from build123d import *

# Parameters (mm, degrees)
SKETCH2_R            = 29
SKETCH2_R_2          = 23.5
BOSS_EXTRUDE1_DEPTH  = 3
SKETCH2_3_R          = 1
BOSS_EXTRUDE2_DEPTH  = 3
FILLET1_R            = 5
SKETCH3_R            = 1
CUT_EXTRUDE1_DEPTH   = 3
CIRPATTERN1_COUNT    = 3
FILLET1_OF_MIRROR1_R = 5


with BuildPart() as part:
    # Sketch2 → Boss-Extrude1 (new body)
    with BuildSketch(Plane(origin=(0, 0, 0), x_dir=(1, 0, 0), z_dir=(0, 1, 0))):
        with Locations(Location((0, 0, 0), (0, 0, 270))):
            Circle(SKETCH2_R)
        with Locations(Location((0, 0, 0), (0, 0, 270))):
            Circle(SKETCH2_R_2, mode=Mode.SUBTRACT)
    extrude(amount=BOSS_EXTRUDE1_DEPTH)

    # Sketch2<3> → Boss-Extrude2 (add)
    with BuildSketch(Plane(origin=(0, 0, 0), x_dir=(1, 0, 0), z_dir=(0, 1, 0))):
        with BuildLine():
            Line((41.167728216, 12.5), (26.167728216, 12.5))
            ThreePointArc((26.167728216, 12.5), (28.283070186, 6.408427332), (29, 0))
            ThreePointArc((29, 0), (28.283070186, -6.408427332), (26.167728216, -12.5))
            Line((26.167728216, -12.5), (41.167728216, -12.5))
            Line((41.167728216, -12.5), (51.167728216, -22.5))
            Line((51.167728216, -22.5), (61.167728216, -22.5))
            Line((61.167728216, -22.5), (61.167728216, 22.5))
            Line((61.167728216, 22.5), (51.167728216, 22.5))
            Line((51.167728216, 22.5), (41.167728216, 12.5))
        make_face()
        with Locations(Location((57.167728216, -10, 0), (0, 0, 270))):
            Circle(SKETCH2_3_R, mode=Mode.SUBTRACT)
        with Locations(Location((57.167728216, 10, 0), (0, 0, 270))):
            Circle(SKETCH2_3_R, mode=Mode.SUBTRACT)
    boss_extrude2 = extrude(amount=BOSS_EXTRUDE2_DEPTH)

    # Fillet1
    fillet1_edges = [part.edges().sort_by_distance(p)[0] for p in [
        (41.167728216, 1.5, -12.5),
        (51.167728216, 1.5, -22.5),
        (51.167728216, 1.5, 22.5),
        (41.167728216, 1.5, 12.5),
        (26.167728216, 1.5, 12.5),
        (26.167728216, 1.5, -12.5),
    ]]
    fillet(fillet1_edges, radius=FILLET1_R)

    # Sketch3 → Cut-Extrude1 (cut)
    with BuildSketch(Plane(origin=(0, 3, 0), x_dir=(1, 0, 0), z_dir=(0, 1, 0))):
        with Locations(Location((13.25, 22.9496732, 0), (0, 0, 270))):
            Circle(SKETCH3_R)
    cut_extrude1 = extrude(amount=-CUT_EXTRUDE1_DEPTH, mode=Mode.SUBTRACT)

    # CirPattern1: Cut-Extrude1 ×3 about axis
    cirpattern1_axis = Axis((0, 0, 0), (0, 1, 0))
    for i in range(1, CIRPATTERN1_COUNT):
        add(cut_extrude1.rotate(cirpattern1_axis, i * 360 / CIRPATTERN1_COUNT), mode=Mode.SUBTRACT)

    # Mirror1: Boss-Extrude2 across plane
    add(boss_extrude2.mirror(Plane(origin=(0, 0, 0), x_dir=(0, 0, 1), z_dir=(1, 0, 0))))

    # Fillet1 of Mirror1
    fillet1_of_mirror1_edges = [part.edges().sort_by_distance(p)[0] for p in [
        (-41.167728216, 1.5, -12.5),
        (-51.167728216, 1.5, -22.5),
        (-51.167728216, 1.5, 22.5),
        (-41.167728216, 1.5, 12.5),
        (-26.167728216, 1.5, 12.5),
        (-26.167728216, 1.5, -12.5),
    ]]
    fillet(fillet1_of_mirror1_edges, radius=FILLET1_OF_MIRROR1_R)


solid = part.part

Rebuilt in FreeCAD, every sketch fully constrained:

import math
import FreeCAD as App
import Part
import Sketcher

V = App.Vector


def edges_at(feature, points):
    """Names of the edges that pass closest to the given points."""
    edges = feature.Shape.Edges
    near = lambda p: min(range(len(edges)), key=lambda i: edges[i].distToShape(Part.Vertex(*p))[0])
    return sorted({f"Edge{near(p) + 1}" for p in points})

doc = App.newDocument("Part")
params = doc.addObject("Spreadsheet::Sheet", "Params")
for row, (alias, value) in enumerate([
    ("sketch1_diameter", "58 mm"),
    ("sketch1_diameter2", "47 mm"),
    ("pad1_length", "3 mm"),
    ("sketch2_diameter", "2 mm"),
    ("sketch2_radius", "29 mm"),
    ("sketch2_width", "15 mm"),
    ("sketch2_width2", "10 mm"),
    ("sketch2_height", "45 mm"),
    ("pad2_length", "3 mm"),
    ("fillet_radius", "5 mm"),
    ("sketch3_diameter", "2 mm"),
    ("pocket1_length", "3 mm"),
    ("fillet2_radius", "5 mm"),
], start=1):
    params.set(f"A{row}", alias)
    params.set(f"B{row}", "=" + value)
    params.setAlias(f"B{row}", alias)

body = doc.addObject("PartDesign::Body", "Body")

# Sketch on XZ plane
sketch1 = doc.addObject("Sketcher::SketchObject", "Sketch")
body.addObject(sketch1)
sketch1.AttachmentSupport = (doc.XZ_Plane, [""])
sketch1.MapMode = "FlatFace"
sketch1.addGeometry([
    Part.Circle(V(0, 0, 0), V(0, 0, 1), 29),
    Part.Circle(V(0, 0, 0), V(0, 0, 1), 24),
], False)
sketch1.addConstraint([
    Sketcher.Constraint("Coincident", 0, 3, -1, 1),
    Sketcher.Constraint("Coincident", 1, 3, -1, 1),
    Sketcher.Constraint("Diameter", 0, 58.0),
    Sketcher.Constraint("Diameter", 1, 47.0),
])
sketch1.setExpression("Constraints[2]", "Params.sketch1_diameter")
sketch1.setExpression("Constraints[3]", "Params.sketch1_diameter2")
pad1 = doc.addObject("PartDesign::Pad", "Pad")
body.addObject(pad1)
pad1.Profile = sketch1
pad1.setExpression("Length", "Params.pad1_length")
pad1.Reversed = True

# Sketch on XZ plane
sketch2 = doc.addObject("Sketcher::SketchObject", "Sketch001")
body.addObject(sketch2)
sketch2.AttachmentSupport = (doc.XZ_Plane, [""])
sketch2.MapMode = "FlatFace"
sketch2.addGeometry([
    Part.LineSegment(V(41.2, -12.5, 0), V(26.2, -12.5, 0)),  # 0
    Part.ArcOfCircle(Part.Circle(V(0, 0, 0), V(0, 0, 1), 29), math.radians(-26), math.radians(0)),  # 1
    Part.ArcOfCircle(Part.Circle(V(0, 0, 0), V(0, 0, 1), 29), math.radians(0), math.radians(26)),  # 2
    Part.LineSegment(V(26.2, 12.5, 0), V(41.2, 12.5, 0)),  # 3
    Part.LineSegment(V(41.2, 12.5, 0), V(51.2, 22.5, 0)),  # 4
    Part.LineSegment(V(51.2, 22.5, 0), V(61.2, 22.5, 0)),  # 5
    Part.LineSegment(V(61.2, 22.5, 0), V(61.2, -22.5, 0)),  # 6
    Part.LineSegment(V(61.2, -22.5, 0), V(51.2, -22.5, 0)),  # 7
    Part.LineSegment(V(51.2, -22.5, 0), V(41.2, -12.5, 0)),  # 8
    Part.Circle(V(57.2, 10, 0), V(0, 0, 1), 1),  # 9
    Part.Circle(V(57.2, -10, 0), V(0, 0, 1), 1),  # 10
], False)
sketch2.addConstraint([
    Sketcher.Constraint("Coincident", 0, 2, 1, 1),
    Sketcher.Constraint("Tangent", 1, 2, 2, 1),
    Sketcher.Constraint("Coincident", 2, 2, 3, 1),
    Sketcher.Constraint("Coincident", 3, 2, 4, 1),
    Sketcher.Constraint("Coincident", 4, 2, 5, 1),
    Sketcher.Constraint("Coincident", 5, 2, 6, 1),
    Sketcher.Constraint("Coincident", 6, 2, 7, 1),
    Sketcher.Constraint("Coincident", 7, 2, 8, 1),
    Sketcher.Constraint("Coincident", 8, 2, 0, 1),
    Sketcher.Constraint("Horizontal", 0),
    Sketcher.Constraint("Horizontal", 3),
    Sketcher.Constraint("Horizontal", 5),
    Sketcher.Constraint("Vertical", 6),
    Sketcher.Constraint("Horizontal", 7),
    Sketcher.Constraint("Coincident", 1, 3, -1, 1),
    Sketcher.Constraint("Equal", 1, 2),
    Sketcher.Constraint("Equal", 9, 10),
    Sketcher.Constraint("Symmetric", 9, 3, 10, 3, -1),
    Sketcher.Constraint("Symmetric", 4, 2, 7, 2, -1),
    Sketcher.Constraint("Symmetric", 3, 2, 8, 2, -1),
    Sketcher.Constraint("PointOnObject", 1, 2, -1),
    Sketcher.Constraint("Perpendicular", 4, 8),
    Sketcher.Constraint("Diameter", 9, 2.0),
    Sketcher.Constraint("Radius", 1, 29.0),
    Sketcher.Constraint("DistanceX", 0, 2, 0, 1, 15.0),
    Sketcher.Constraint("DistanceX", 5, 1, 5, 2, 10.0),
    Sketcher.Constraint("DistanceY", 6, 2, 6, 1, 45.0),
    Sketcher.Constraint("DistanceY", -1, 1, 9, 3, 10.0),
    Sketcher.Constraint("DistanceX", 0, 2, 10, 3, 31.0),
    Sketcher.Constraint("DistanceY", 0, 2, 2, 2, 25.0),
])
sketch2.setExpression("Constraints[22]", "Params.sketch2_diameter")
sketch2.setExpression("Constraints[23]", "Params.sketch2_radius")
sketch2.setExpression("Constraints[24]", "Params.sketch2_width")
sketch2.setExpression("Constraints[25]", "Params.sketch2_width2")
sketch2.setExpression("Constraints[26]", "Params.sketch2_height")
pad2 = doc.addObject("PartDesign::Pad", "Pad001")
body.addObject(pad2)
pad2.Profile = sketch2
pad2.setExpression("Length", "Params.pad2_length")
pad2.Reversed = True
doc.recompute()

fillet = doc.addObject("PartDesign::Fillet", "Fillet")
body.addObject(fillet)
fillet.Base = (pad2, edges_at(pad2, [
    (41.168, 1.5, -12.5),
    (51.168, 1.5, -22.5),
    (51.168, 1.5, 22.5),
    (41.168, 1.5, 12.5),
    (26.168, 1.5, 12.5),
    (26.168, 1.5, -12.5),
]))
fillet.setExpression("Radius", "Params.fillet_radius")

# Sketch on XZ plane
sketch3 = doc.addObject("Sketcher::SketchObject", "Sketch002")
body.addObject(sketch3)
sketch3.AttachmentSupport = (doc.XZ_Plane, [""])
sketch3.MapMode = "FlatFace"
sketch3.AttachmentOffset = App.Placement(V(0, 0, -3), App.Rotation())
sketch3.addGeometry(Part.Circle(V(13.2, -22.9, 0), V(0, 0, 1), 1), False)
sketch3.addConstraint([
    Sketcher.Constraint("Diameter", 0, 2.0),
    Sketcher.Constraint("DistanceX", -1, 1, 0, 3, 13.25),
    Sketcher.Constraint("DistanceY", 0, 3, -1, 1, 22.949673),
])
sketch3.setExpression("Constraints[0]", "Params.sketch3_diameter")
pocket1 = doc.addObject("PartDesign::Pocket", "Pocket")
body.addObject(pocket1)
pocket1.Profile = sketch3
pocket1.setExpression("Length", "Params.pocket1_length")
pocket1.Reversed = True
doc.recompute()

polarpattern = doc.addObject("PartDesign::PolarPattern", "PolarPattern")
body.addObject(polarpattern)
polarpattern.Originals = [pocket1]
polarpattern.Axis = (doc.Y_Axis, [""])
polarpattern.Angle = 360
polarpattern.Occurrences = 3
body.Tip = polarpattern
doc.recompute()

mirrored = doc.addObject("PartDesign::Mirrored", "Mirrored")
body.addObject(mirrored)
mirrored.Originals = [pad2]
mirrored.MirrorPlane = (doc.YZ_Plane, [""])
body.Tip = mirrored
doc.recompute()

fillet2 = doc.addObject("PartDesign::Fillet", "Fillet001")
body.addObject(fillet2)
fillet2.Base = (mirrored, edges_at(mirrored, [
    (-41.168, 1.5, -12.5),
    (-51.168, 1.5, -22.5),
    (-51.168, 1.5, 22.5),
    (-41.168, 1.5, 12.5),
    (-26.168, 1.5, 12.5),
    (-26.168, 1.5, -12.5),
]))
fillet2.setExpression("Radius", "Params.fillet2_radius")

doc.recompute()
